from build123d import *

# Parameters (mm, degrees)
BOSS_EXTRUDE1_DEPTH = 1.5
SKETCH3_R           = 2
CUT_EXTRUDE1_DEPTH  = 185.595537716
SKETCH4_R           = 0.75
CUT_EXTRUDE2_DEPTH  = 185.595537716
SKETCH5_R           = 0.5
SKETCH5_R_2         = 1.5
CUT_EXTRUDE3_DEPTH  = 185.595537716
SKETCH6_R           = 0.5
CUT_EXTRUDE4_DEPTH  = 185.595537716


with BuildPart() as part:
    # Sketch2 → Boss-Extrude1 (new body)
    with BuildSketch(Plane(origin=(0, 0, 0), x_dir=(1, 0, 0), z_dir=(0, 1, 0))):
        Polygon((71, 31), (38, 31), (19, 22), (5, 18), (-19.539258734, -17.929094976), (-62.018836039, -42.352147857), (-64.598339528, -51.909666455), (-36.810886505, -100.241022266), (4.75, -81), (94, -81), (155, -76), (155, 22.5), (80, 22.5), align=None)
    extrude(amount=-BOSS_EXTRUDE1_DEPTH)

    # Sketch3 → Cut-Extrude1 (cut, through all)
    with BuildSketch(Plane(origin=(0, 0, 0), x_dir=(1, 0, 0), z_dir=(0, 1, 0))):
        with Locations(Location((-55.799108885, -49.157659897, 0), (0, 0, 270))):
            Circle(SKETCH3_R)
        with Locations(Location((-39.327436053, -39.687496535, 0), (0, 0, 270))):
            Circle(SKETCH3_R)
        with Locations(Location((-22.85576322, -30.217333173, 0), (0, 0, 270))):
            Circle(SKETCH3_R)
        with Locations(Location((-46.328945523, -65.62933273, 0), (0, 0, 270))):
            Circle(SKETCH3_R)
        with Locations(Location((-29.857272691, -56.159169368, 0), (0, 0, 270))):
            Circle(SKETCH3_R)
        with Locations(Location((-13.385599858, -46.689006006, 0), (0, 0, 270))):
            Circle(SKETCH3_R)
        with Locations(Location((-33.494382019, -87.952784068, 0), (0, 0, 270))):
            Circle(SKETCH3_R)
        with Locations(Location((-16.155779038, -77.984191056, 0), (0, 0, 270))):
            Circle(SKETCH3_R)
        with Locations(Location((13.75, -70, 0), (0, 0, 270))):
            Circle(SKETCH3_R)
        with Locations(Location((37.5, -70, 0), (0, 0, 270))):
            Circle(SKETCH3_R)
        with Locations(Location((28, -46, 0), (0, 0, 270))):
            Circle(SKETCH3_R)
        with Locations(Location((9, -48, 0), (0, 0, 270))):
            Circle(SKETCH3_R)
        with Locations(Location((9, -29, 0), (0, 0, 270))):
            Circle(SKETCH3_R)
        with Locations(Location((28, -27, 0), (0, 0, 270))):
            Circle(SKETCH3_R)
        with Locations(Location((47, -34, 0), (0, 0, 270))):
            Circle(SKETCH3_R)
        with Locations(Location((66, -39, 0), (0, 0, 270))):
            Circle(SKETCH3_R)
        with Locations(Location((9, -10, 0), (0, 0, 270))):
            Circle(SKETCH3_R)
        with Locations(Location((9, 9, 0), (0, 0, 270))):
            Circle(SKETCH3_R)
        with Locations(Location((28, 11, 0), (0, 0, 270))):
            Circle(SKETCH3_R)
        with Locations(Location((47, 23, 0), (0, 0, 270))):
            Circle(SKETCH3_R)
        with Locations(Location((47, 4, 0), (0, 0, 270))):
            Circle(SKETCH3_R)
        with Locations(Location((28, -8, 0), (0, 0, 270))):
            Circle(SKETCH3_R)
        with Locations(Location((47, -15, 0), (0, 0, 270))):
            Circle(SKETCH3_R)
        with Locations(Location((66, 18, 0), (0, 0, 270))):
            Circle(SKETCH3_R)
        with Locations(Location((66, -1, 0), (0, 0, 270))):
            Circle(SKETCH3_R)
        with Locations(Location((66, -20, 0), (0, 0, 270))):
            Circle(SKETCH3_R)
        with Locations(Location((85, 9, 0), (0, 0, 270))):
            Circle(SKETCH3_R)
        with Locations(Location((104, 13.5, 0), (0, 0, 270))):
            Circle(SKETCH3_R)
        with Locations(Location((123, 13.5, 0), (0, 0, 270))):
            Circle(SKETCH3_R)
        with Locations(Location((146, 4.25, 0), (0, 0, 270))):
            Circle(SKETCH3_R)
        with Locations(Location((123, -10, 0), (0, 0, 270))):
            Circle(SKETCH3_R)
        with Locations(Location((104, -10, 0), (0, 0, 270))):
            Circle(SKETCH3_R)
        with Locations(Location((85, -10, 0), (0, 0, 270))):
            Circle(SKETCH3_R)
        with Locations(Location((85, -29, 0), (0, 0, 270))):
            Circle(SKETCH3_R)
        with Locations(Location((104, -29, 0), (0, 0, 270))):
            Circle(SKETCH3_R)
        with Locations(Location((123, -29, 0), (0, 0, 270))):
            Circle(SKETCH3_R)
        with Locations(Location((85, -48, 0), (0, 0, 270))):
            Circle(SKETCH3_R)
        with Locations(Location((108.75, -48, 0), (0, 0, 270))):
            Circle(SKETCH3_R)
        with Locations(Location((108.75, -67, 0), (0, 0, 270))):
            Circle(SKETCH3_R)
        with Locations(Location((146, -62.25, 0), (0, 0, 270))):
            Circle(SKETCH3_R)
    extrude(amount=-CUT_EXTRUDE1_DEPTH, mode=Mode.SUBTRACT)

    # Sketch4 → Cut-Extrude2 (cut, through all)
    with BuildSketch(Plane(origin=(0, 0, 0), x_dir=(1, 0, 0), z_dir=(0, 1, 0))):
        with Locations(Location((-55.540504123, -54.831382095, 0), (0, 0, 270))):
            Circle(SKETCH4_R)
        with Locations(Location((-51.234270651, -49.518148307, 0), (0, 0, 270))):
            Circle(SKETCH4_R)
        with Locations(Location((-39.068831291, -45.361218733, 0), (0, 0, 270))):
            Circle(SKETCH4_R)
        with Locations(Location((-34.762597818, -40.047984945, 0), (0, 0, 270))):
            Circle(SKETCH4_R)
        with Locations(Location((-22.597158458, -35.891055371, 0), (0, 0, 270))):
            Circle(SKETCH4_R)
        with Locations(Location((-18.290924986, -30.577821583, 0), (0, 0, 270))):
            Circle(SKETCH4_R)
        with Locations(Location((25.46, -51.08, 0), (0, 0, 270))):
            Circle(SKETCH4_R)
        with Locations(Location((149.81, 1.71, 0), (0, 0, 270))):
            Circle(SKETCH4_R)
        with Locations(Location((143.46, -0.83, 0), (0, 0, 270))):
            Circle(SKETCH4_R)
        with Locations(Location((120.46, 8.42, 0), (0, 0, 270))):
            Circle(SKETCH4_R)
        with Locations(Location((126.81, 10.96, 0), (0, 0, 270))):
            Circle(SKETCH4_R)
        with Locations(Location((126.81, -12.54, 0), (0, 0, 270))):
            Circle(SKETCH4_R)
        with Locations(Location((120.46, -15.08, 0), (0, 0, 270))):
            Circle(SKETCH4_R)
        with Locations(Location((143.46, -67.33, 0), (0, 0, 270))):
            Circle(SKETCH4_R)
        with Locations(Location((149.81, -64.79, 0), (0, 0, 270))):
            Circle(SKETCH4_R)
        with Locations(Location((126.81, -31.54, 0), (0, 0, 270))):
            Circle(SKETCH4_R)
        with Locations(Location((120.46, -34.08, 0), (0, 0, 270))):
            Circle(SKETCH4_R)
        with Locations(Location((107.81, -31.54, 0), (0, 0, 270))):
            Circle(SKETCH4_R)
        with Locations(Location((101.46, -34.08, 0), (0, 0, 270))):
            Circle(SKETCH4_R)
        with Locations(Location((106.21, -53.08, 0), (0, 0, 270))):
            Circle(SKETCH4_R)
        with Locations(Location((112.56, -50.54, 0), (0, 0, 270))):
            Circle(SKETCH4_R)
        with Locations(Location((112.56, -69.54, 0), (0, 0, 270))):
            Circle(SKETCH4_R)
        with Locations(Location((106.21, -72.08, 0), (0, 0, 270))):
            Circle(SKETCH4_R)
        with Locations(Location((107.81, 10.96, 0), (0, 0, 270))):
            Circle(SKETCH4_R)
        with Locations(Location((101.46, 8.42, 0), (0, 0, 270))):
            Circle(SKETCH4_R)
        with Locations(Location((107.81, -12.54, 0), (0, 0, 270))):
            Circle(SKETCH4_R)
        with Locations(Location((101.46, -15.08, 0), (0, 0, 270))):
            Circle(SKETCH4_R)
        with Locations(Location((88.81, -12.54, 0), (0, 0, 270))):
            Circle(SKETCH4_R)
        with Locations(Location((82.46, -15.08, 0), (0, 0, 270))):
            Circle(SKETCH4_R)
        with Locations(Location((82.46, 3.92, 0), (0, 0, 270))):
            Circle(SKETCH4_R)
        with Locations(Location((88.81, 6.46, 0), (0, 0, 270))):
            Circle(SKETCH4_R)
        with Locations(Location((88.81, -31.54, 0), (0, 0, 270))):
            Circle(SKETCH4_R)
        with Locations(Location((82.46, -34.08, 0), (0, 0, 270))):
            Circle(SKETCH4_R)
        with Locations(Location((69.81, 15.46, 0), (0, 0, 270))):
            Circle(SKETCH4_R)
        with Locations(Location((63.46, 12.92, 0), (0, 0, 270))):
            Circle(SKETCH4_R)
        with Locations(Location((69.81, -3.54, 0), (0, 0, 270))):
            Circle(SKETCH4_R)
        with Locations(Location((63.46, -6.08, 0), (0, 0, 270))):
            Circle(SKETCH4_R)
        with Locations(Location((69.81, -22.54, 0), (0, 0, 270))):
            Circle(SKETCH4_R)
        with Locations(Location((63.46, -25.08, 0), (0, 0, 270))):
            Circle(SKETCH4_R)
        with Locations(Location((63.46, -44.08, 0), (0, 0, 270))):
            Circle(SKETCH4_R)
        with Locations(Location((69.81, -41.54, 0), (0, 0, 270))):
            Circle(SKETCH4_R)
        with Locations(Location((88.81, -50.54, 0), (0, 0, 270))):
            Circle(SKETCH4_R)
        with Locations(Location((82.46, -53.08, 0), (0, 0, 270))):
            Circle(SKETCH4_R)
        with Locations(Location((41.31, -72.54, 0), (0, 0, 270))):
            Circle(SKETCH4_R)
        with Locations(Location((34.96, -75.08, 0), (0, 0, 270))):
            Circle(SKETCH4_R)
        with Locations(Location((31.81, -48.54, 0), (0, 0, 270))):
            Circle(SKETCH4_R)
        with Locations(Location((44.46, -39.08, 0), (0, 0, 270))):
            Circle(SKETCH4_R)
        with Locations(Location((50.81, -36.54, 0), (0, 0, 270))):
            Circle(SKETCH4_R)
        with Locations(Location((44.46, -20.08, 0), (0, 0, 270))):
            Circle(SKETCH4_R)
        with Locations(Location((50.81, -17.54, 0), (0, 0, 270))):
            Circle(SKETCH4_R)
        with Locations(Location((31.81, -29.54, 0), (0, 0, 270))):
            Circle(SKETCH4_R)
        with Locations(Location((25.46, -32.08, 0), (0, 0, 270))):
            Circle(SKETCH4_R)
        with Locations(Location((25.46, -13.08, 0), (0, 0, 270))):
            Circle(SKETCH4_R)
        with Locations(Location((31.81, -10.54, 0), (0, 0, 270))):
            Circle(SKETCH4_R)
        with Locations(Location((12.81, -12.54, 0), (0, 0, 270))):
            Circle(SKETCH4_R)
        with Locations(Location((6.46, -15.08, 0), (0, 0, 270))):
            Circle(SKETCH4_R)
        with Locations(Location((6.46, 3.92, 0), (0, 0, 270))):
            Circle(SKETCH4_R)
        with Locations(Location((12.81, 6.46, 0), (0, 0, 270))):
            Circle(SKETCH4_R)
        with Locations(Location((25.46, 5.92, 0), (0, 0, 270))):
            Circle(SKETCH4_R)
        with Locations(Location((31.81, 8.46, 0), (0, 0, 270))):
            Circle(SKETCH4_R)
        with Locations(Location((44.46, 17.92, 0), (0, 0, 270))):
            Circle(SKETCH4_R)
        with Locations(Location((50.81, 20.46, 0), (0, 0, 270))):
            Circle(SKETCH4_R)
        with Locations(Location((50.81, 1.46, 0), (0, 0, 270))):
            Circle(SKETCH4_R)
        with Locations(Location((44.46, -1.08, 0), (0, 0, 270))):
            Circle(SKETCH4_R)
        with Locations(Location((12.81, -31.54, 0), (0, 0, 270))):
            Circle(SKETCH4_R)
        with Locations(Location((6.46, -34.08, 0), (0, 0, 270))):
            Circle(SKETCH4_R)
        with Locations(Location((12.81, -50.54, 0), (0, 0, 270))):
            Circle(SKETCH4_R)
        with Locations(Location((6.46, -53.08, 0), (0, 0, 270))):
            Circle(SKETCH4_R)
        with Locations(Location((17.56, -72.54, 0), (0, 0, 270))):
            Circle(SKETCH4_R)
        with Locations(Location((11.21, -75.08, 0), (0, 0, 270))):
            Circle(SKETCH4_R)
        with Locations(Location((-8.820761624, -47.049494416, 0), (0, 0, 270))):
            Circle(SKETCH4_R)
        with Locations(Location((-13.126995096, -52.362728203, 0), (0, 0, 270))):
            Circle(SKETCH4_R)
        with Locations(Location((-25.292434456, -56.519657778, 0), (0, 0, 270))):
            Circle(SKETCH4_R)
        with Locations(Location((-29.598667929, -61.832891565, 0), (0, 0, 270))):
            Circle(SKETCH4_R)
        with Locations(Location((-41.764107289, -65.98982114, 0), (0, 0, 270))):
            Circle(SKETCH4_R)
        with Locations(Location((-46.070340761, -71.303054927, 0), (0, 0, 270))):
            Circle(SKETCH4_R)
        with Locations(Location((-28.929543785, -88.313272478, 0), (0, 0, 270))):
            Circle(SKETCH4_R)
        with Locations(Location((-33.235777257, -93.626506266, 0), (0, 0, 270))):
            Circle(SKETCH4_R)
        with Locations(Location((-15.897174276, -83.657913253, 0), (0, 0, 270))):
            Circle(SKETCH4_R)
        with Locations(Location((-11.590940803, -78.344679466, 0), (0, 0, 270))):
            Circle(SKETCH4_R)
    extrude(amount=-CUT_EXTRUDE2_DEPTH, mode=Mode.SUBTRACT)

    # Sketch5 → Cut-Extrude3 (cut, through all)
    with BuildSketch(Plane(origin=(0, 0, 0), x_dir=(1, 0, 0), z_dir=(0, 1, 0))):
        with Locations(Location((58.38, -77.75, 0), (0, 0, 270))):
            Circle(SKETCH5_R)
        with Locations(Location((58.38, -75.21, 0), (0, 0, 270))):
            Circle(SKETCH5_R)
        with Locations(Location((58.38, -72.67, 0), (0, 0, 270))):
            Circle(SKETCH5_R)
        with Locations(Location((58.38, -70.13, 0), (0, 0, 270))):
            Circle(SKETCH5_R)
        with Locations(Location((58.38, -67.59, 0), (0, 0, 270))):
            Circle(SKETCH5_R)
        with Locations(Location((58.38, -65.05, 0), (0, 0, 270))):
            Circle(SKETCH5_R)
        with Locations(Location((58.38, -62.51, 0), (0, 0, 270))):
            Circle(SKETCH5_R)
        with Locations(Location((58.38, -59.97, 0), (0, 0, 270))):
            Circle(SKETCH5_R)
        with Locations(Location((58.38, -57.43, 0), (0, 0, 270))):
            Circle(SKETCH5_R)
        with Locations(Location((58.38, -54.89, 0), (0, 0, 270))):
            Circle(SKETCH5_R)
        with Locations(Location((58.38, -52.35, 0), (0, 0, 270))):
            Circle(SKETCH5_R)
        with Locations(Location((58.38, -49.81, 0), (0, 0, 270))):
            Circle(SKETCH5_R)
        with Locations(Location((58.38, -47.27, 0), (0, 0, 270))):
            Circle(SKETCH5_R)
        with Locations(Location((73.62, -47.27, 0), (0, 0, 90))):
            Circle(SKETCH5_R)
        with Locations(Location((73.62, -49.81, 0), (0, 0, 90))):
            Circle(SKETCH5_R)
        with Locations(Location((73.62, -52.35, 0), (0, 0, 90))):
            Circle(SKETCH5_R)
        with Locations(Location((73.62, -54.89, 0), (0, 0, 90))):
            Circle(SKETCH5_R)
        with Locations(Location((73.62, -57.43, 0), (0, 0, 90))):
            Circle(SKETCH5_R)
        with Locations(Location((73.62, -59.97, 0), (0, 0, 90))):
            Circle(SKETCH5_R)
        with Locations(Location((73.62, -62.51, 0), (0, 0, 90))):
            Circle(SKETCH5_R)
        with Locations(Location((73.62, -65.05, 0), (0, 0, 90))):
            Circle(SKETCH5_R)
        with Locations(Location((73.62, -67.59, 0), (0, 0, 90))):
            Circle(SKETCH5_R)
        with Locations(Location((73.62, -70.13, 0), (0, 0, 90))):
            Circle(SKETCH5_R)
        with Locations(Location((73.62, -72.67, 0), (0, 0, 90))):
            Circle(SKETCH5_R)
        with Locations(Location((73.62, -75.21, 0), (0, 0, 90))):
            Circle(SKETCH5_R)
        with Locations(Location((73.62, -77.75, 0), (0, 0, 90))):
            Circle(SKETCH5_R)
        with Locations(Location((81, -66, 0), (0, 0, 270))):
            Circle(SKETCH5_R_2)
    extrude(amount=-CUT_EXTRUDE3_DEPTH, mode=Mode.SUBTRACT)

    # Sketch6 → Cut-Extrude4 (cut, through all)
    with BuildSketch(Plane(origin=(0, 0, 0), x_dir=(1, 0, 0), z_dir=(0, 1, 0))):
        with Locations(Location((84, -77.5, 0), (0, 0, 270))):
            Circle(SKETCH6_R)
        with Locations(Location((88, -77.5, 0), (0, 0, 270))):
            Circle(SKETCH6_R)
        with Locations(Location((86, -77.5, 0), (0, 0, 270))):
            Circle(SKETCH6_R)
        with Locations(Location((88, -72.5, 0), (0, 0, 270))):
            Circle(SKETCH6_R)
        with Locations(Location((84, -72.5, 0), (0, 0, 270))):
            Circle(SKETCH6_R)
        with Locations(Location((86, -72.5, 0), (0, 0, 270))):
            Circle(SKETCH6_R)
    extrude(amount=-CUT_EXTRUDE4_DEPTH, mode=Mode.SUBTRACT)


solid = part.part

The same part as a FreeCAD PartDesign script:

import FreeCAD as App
import Part
import Sketcher


def add_polygon(sketch, points):
    """Adds a closed chain of lines whose ends are joined by coincident constraints."""
    first, n = sketch.GeometryCount, len(points)
    for a, b in zip(points, points[1:] + points[:1]):
        sketch.addGeometry(Part.LineSegment(App.Vector(*a, 0), App.Vector(*b, 0)), False)
    for i in range(n):
        sketch.addConstraint(Sketcher.Constraint("Coincident", first + i, 2, first + (i + 1) % n, 1))

doc = App.newDocument("Part")
body = doc.addObject("PartDesign::Body", "Body")

sketch1 = doc.addObject("Sketcher::SketchObject", "Sketch")
body.addObject(sketch1)
sketch1.AttachmentSupport = (doc.XZ_Plane, [""])
sketch1.MapMode = "FlatFace"
add_polygon(sketch1, [(71, -31), (38, -31), (19, -22), (5, -18), (-19.539259, 17.929095), (-62.018836, 42.352148), (-64.59834, 51.909666), (-36.810887, 100.241022), (4.75, 81), (94, 81), (155, 76), (155, -22.5), (80, -22.5)])
sketch1.addConstraint([
    Sketcher.Constraint("Horizontal", 0),
    Sketcher.Constraint("Horizontal", 8),
    Sketcher.Constraint("Vertical", 10),
    Sketcher.Constraint("Horizontal", 11),
    Sketcher.Constraint("Perpendicular", 4, 6),
    Sketcher.Constraint("DistanceX", 0, 2, 0, 1, 33.0),
    Sketcher.Constraint("DistanceX", 11, 2, 11, 1, 75.0),
    Sketcher.Constraint("Distance", 4, 49.0),
    Sketcher.Constraint("DistanceY", 10, 2, 10, 1, 98.5),
    Sketcher.Constraint("DistanceX", -1, 1, 0, 2, 38.0),
    Sketcher.Constraint("DistanceY", 0, 2, -1, 1, 31.0),
    Sketcher.Constraint("DistanceX", -1, 1, 1, 2, 19.0),
    Sketcher.Constraint("DistanceY", 1, 2, -1, 1, 22.0),
    Sketcher.Constraint("DistanceX", -1, 1, 2, 2, 5.0),
    Sketcher.Constraint("DistanceY", 2, 2, -1, 1, 18.0),
    Sketcher.Constraint("DistanceY", -1, 1, 7, 2, 81.0),
    Sketcher.Constraint("DistanceX", -1, 1, 8, 2, 94.0),
    Sketcher.Constraint("DistanceX", -1, 1, 9, 2, 155.0),
    Sketcher.Constraint("DistanceY", -1, 1, 9, 2, 76.0),
    Sketcher.Constraint("DistanceX", 8, 1, 8, 2, 89.25),
    Sketcher.Constraint("Distance", 6, 55.75),
    Sketcher.Constraint("DistanceX", 3, 2, -1, 1, 19.539259),
    Sketcher.Constraint("DistanceX", 5, 2, -1, 1, 64.59834),
    Sketcher.Constraint("DistanceY", 4, 2, 5, 2, 9.557519),
    Sketcher.Constraint("DistanceY", 3, 2, 5, 2, 33.980571),
    Sketcher.Constraint("Distance", 3, 43.509483),
])
pad1 = doc.addObject("PartDesign::Pad", "Pad")
body.addObject(pad1)
pad1.Profile = sketch1
pad1.Length = 1.5

sketch2 = doc.addObject("Sketcher::SketchObject", "Sketch001")
body.addObject(sketch2)
sketch2.AttachmentSupport = (doc.XZ_Plane, [""])
sketch2.MapMode = "FlatFace"
sketch2.addGeometry([
    Part.Circle(App.Vector(-55.799109, 49.15766, 0), App.Vector(0, 0, 1), 2),
    Part.Circle(App.Vector(-39.327436, 39.687497, 0), App.Vector(0, 0, 1), 2),
    Part.Circle(App.Vector(-22.855763, 30.217333, 0), App.Vector(0, 0, 1), 2),
    Part.Circle(App.Vector(-46.328946, 65.629333, 0), App.Vector(0, 0, 1), 2),
    Part.Circle(App.Vector(-29.857273, 56.159169, 0), App.Vector(0, 0, 1), 2),
    Part.Circle(App.Vector(-13.3856, 46.689006, 0), App.Vector(0, 0, 1), 2),
    Part.Circle(App.Vector(-33.494382, 87.952784, 0), App.Vector(0, 0, 1), 2),
    Part.Circle(App.Vector(-16.155779, 77.984191, 0), App.Vector(0, 0, 1), 2),
    Part.Circle(App.Vector(13.75, 70, 0), App.Vector(0, 0, 1), 2),
    Part.Circle(App.Vector(37.5, 70, 0), App.Vector(0, 0, 1), 2),
    Part.Circle(App.Vector(28, 46, 0), App.Vector(0, 0, 1), 2),
    Part.Circle(App.Vector(9, 48, 0), App.Vector(0, 0, 1), 2),
    Part.Circle(App.Vector(9, 29, 0), App.Vector(0, 0, 1), 2),
    Part.Circle(App.Vector(28, 27, 0), App.Vector(0, 0, 1), 2),
    Part.Circle(App.Vector(47, 34, 0), App.Vector(0, 0, 1), 2),
    Part.Circle(App.Vector(66, 39, 0), App.Vector(0, 0, 1), 2),
    Part.Circle(App.Vector(9, 10, 0), App.Vector(0, 0, 1), 2),
    Part.Circle(App.Vector(9, -9, 0), App.Vector(0, 0, 1), 2),
    Part.Circle(App.Vector(28, -11, 0), App.Vector(0, 0, 1), 2),
    Part.Circle(App.Vector(47, -23, 0), App.Vector(0, 0, 1), 2),
    Part.Circle(App.Vector(47, -4, 0), App.Vector(0, 0, 1), 2),
    Part.Circle(App.Vector(28, 8, 0), App.Vector(0, 0, 1), 2),
    Part.Circle(App.Vector(47, 15, 0), App.Vector(0, 0, 1), 2),
    Part.Circle(App.Vector(66, -18, 0), App.Vector(0, 0, 1), 2),
    Part.Circle(App.Vector(66, 1, 0), App.Vector(0, 0, 1), 2),
    Part.Circle(App.Vector(66, 20, 0), App.Vector(0, 0, 1), 2),
    Part.Circle(App.Vector(85, -9, 0), App.Vector(0, 0, 1), 2),
    Part.Circle(App.Vector(104, -13.5, 0), App.Vector(0, 0, 1), 2),
    Part.Circle(App.Vector(123, -13.5, 0), App.Vector(0, 0, 1), 2),
    Part.Circle(App.Vector(146, -4.25, 0), App.Vector(0, 0, 1), 2),
    Part.Circle(App.Vector(123, 10, 0), App.Vector(0, 0, 1), 2),
    Part.Circle(App.Vector(104, 10, 0), App.Vector(0, 0, 1), 2),
    Part.Circle(App.Vector(85, 10, 0), App.Vector(0, 0, 1), 2),
    Part.Circle(App.Vector(85, 29, 0), App.Vector(0, 0, 1), 2),
    Part.Circle(App.Vector(104, 29, 0), App.Vector(0, 0, 1), 2),
    Part.Circle(App.Vector(123, 29, 0), App.Vector(0, 0, 1), 2),
    Part.Circle(App.Vector(85, 48, 0), App.Vector(0, 0, 1), 2),
    Part.Circle(App.Vector(108.75, 48, 0), App.Vector(0, 0, 1), 2),
    Part.Circle(App.Vector(108.75, 67, 0), App.Vector(0, 0, 1), 2),
    Part.Circle(App.Vector(146, 62.25, 0), App.Vector(0, 0, 1), 2),
], False)
sketch2.addConstraint([
    Sketcher.Constraint("Equal", 0, 1),
    Sketcher.Constraint("Equal", 1, 2),
    Sketcher.Constraint("Equal", 2, 3),
    Sketcher.Constraint("Equal", 3, 4),
    Sketcher.Constraint("Equal", 4, 5),
    Sketcher.Constraint("Equal", 5, 6),
    Sketcher.Constraint("Equal", 6, 7),
    Sketcher.Constraint("Equal", 7, 8),
    Sketcher.Constraint("Equal", 8, 9),
    Sketcher.Constraint("Equal", 9, 10),
    Sketcher.Constraint("Equal", 10, 11),
    Sketcher.Constraint("Equal", 11, 12),
    Sketcher.Constraint("Equal", 12, 13),
    Sketcher.Constraint("Equal", 13, 14),
    Sketcher.Constraint("Equal", 14, 15),
    Sketcher.Constraint("Equal", 15, 16),
    Sketcher.Constraint("Equal", 16, 17),
    Sketcher.Constraint("Equal", 17, 18),
    Sketcher.Constraint("Equal", 18, 19),
    Sketcher.Constraint("Equal", 19, 20),
    Sketcher.Constraint("Equal", 20, 21),
    Sketcher.Constraint("Equal", 21, 22),
    Sketcher.Constraint("Equal", 22, 23),
    Sketcher.Constraint("Equal", 23, 24),
    Sketcher.Constraint("Equal", 24, 25),
    Sketcher.Constraint("Equal", 25, 26),
    Sketcher.Constraint("Equal", 26, 27),
    Sketcher.Constraint("Equal", 27, 28),
    Sketcher.Constraint("Equal", 28, 29),
    Sketcher.Constraint("Equal", 29, 30),
    Sketcher.Constraint("Equal", 30, 31),
    Sketcher.Constraint("Equal", 31, 32),
    Sketcher.Constraint("Equal", 32, 33),
    Sketcher.Constraint("Equal", 33, 34),
    Sketcher.Constraint("Equal", 34, 35),
    Sketcher.Constraint("Equal", 35, 36),
    Sketcher.Constraint("Equal", 36, 37),
    Sketcher.Constraint("Equal", 37, 38),
    Sketcher.Constraint("Equal", 38, 39),
    Sketcher.Constraint("Horizontal", 8, 3, 9, 3),
    Sketcher.Constraint("Horizontal", 17, 3, 26, 3),
    Sketcher.Constraint("Horizontal", 27, 3, 28, 3),
    Sketcher.Constraint("Horizontal", 16, 3, 30, 3),
    Sketcher.Constraint("Horizontal", 30, 3, 31, 3),
    Sketcher.Constraint("Horizontal", 31, 3, 32, 3),
    Sketcher.Constraint("Horizontal", 12, 3, 33, 3),
    Sketcher.Constraint("Horizontal", 33, 3, 34, 3),
    Sketcher.Constraint("Horizontal", 34, 3, 35, 3),
    Sketcher.Constraint("Horizontal", 11, 3, 36, 3),
    Sketcher.Constraint("Horizontal", 36, 3, 37, 3),
    Sketcher.Constraint("Vertical", 11, 3, 12, 3),
    Sketcher.Constraint("Vertical", 10, 3, 13, 3),
    Sketcher.Constraint("Vertical", 12, 3, 16, 3),
    Sketcher.Constraint("Vertical", 16, 3, 17, 3),
    Sketcher.Constraint("Vertical", 13, 3, 18, 3),
    Sketcher.Constraint("Vertical", 14, 3, 19, 3),
    Sketcher.Constraint("Vertical", 19, 3, 20, 3),
    Sketcher.Constraint("Vertical", 18, 3, 21, 3),
    Sketcher.Constraint("Vertical", 20, 3, 22, 3),
    Sketcher.Constraint("Vertical", 15, 3, 23, 3),
    Sketcher.Constraint("Vertical", 23, 3, 24, 3),
    Sketcher.Constraint("Vertical", 24, 3, 25, 3),
    Sketcher.Constraint("Vertical", 28, 3, 30, 3),
    Sketcher.Constraint("Vertical", 27, 3, 31, 3),
    Sketcher.Constraint("Vertical", 26, 3, 32, 3),
    Sketcher.Constraint("Vertical", 32, 3, 33, 3),
    Sketcher.Constraint("Vertical", 31, 3, 34, 3),
    Sketcher.Constraint("Vertical", 30, 3, 35, 3),
    Sketcher.Constraint("Vertical", 33, 3, 36, 3),
    Sketcher.Constraint("Vertical", 37, 3, 38, 3),
    Sketcher.Constraint("Vertical", 29, 3, 39, 3),
    Sketcher.Constraint("Diameter", 0, 4.0),
    Sketcher.Constraint("DistanceY", -1, 1, 8, 3, 70.0),
    Sketcher.Constraint("DistanceX", -1, 1, 10, 3, 28.0),
    Sketcher.Constraint("DistanceY", -1, 1, 10, 3, 46.0),
    Sketcher.Constraint("DistanceX", -1, 1, 11, 3, 9.0),
    Sketcher.Constraint("DistanceY", -1, 1, 11, 3, 48.0),
    Sketcher.Constraint("DistanceY", -1, 1, 12, 3, 29.0),
    Sketcher.Constraint("DistanceY", -1, 1, 13, 3, 27.0),
    Sketcher.Constraint("DistanceX", -1, 1, 14, 3, 47.0),
    Sketcher.Constraint("DistanceY", -1, 1, 14, 3, 34.0),
    Sketcher.Constraint("DistanceX", -1, 1, 15, 3, 66.0),
    Sketcher.Constraint("DistanceY", -1, 1, 15, 3, 39.0),
    Sketcher.Constraint("DistanceY", -1, 1, 16, 3, 10.0),
    Sketcher.Constraint("DistanceY", 17, 3, -1, 1, 9.0),
    Sketcher.Constraint("DistanceY", 18, 3, -1, 1, 11.0),
    Sketcher.Constraint("DistanceY", 19, 3, -1, 1, 23.0),
    Sketcher.Constraint("DistanceY", 20, 3, -1, 1, 4.0),
    Sketcher.Constraint("DistanceY", -1, 1, 21, 3, 8.0),
    Sketcher.Constraint("DistanceY", -1, 1, 22, 3, 15.0),
    Sketcher.Constraint("DistanceY", 23, 3, -1, 1, 18.0),
    Sketcher.Constraint("DistanceY", -1, 1, 24, 3, 1.0),
    Sketcher.Constraint("DistanceY", -1, 1, 25, 3, 20.0),
    Sketcher.Constraint("DistanceX", -1, 1, 26, 3, 85.0),
    Sketcher.Constraint("DistanceX", -1, 1, 27, 3, 104.0),
    Sketcher.Constraint("DistanceX", -1, 1, 28, 3, 123.0),
    Sketcher.Constraint("DistanceX", -1, 1, 29, 3, 146.0),
    Sketcher.Constraint("DistanceY", -1, 1, 38, 3, 67.0),
    Sketcher.Constraint("DistanceX", -1, 1, 9, 3, 37.5),
    Sketcher.Constraint("DistanceY", 27, 3, -1, 1, 13.5),
    Sketcher.Constraint("DistanceX", -1, 1, 8, 3, 13.75),
    Sketcher.Constraint("DistanceY", 29, 3, -1, 1, 4.25),
    Sketcher.Constraint("DistanceX", -1, 1, 37, 3, 108.75),
    Sketcher.Constraint("DistanceY", -1, 1, 39, 3, 62.25),
    Sketcher.Constraint("DistanceY", 2, 3, 3, 3, 35.412),
    Sketcher.Constraint("DistanceX", 5, 3, -1, 1, 13.3856),
    Sketcher.Constraint("DistanceX", 0, 3, -1, 1, 55.799109),
    Sketcher.Constraint("DistanceY", -1, 1, 0, 3, 49.15766),
    Sketcher.Constraint("DistanceY", -1, 1, 4, 3, 56.159169),
    Sketcher.Constraint("DistanceX", 7, 3, -1, 1, 16.155779),
    Sketcher.Constraint("DistanceY", -1, 1, 7, 3, 77.984191),
    Sketcher.Constraint("DistanceX", 3, 3, 1, 3, 7.001509),
    Sketcher.Constraint("DistanceX", 4, 3, 2, 3, 7.001509),
    Sketcher.Constraint("DistanceY", 1, 3, 5, 3, 7.001509),
    Sketcher.Constraint("DistanceY", 3, 3, 6, 3, 22.323451),
    Sketcher.Constraint("DistanceX", 6, 3, 4, 3, 3.637109),
    Sketcher.Constraint("DistanceY", 5, 3, 6, 3, 41.263778),
    Sketcher.Constraint("DistanceY", 3, 3, 7, 3, 12.354858),
    Sketcher.Constraint("DistanceX", 1, 3, -1, 1, 39.327436),
    Sketcher.Constraint("DistanceX", 2, 3, -1, 1, 22.855763),
])
pocket1 = doc.addObject("PartDesign::Pocket", "Pocket")
body.addObject(pocket1)
pocket1.Profile = sketch2
pocket1.Type = "ThroughAll"
pocket1.Reversed = True

sketch3 = doc.addObject("Sketcher::SketchObject", "Sketch002")
body.addObject(sketch3)
sketch3.AttachmentSupport = (doc.XZ_Plane, [""])
sketch3.MapMode = "FlatFace"
sketch3.addGeometry([
    Part.Circle(App.Vector(-55.540504, 54.831382, 0), App.Vector(0, 0, 1), 0.75),
    Part.Circle(App.Vector(-51.234271, 49.518148, 0), App.Vector(0, 0, 1), 0.75),
    Part.Circle(App.Vector(-39.068831, 45.361219, 0), App.Vector(0, 0, 1), 0.75),
    Part.Circle(App.Vector(-34.762598, 40.047985, 0), App.Vector(0, 0, 1), 0.75),
    Part.Circle(App.Vector(-22.597158, 35.891055, 0), App.Vector(0, 0, 1), 0.75),
    Part.Circle(App.Vector(-18.290925, 30.577822, 0), App.Vector(0, 0, 1), 0.75),
    Part.Circle(App.Vector(25.46, 51.08, 0), App.Vector(0, 0, 1), 0.75),
    Part.Circle(App.Vector(149.81, -1.71, 0), App.Vector(0, 0, 1), 0.75),
    Part.Circle(App.Vector(143.46, 0.83, 0), App.Vector(0, 0, 1), 0.75),
    Part.Circle(App.Vector(120.46, -8.42, 0), App.Vector(0, 0, 1), 0.75),
    Part.Circle(App.Vector(126.81, -10.96, 0), App.Vector(0, 0, 1), 0.75),
    Part.Circle(App.Vector(126.81, 12.54, 0), App.Vector(0, 0, 1), 0.75),
    Part.Circle(App.Vector(120.46, 15.08, 0), App.Vector(0, 0, 1), 0.75),
    Part.Circle(App.Vector(143.46, 67.33, 0), App.Vector(0, 0, 1), 0.75),
    Part.Circle(App.Vector(149.81, 64.79, 0), App.Vector(0, 0, 1), 0.75),
    Part.Circle(App.Vector(126.81, 31.54, 0), App.Vector(0, 0, 1), 0.75),
    Part.Circle(App.Vector(120.46, 34.08, 0), App.Vector(0, 0, 1), 0.75),
    Part.Circle(App.Vector(107.81, 31.54, 0), App.Vector(0, 0, 1), 0.75),
    Part.Circle(App.Vector(101.46, 34.08, 0), App.Vector(0, 0, 1), 0.75),
    Part.Circle(App.Vector(106.21, 53.08, 0), App.Vector(0, 0, 1), 0.75),
    Part.Circle(App.Vector(112.56, 50.54, 0), App.Vector(0, 0, 1), 0.75),
    Part.Circle(App.Vector(112.56, 69.54, 0), App.Vector(0, 0, 1), 0.75),
    Part.Circle(App.Vector(106.21, 72.08, 0), App.Vector(0, 0, 1), 0.75),
    Part.Circle(App.Vector(107.81, -10.96, 0), App.Vector(0, 0, 1), 0.75),
    Part.Circle(App.Vector(101.46, -8.42, 0), App.Vector(0, 0, 1), 0.75),
    Part.Circle(App.Vector(107.81, 12.54, 0), App.Vector(0, 0, 1), 0.75),
    Part.Circle(App.Vector(101.46, 15.08, 0), App.Vector(0, 0, 1), 0.75),
    Part.Circle(App.Vector(88.81, 12.54, 0), App.Vector(0, 0, 1), 0.75),
    Part.Circle(App.Vector(82.46, 15.08, 0), App.Vector(0, 0, 1), 0.75),
    Part.Circle(App.Vector(82.46, -3.92, 0), App.Vector(0, 0, 1), 0.75),
    Part.Circle(App.Vector(88.81, -6.46, 0), App.Vector(0, 0, 1), 0.75),
    Part.Circle(App.Vector(88.81, 31.54, 0), App.Vector(0, 0, 1), 0.75),
    Part.Circle(App.Vector(82.46, 34.08, 0), App.Vector(0, 0, 1), 0.75),
    Part.Circle(App.Vector(69.81, -15.46, 0), App.Vector(0, 0, 1), 0.75),
    Part.Circle(App.Vector(63.46, -12.92, 0), App.Vector(0, 0, 1), 0.75),
    Part.Circle(App.Vector(69.81, 3.54, 0), App.Vector(0, 0, 1), 0.75),
    Part.Circle(App.Vector(63.46, 6.08, 0), App.Vector(0, 0, 1), 0.75),
    Part.Circle(App.Vector(69.81, 22.54, 0), App.Vector(0, 0, 1), 0.75),
    Part.Circle(App.Vector(63.46, 25.08, 0), App.Vector(0, 0, 1), 0.75),
    Part.Circle(App.Vector(63.46, 44.08, 0), App.Vector(0, 0, 1), 0.75),
    Part.Circle(App.Vector(69.81, 41.54, 0), App.Vector(0, 0, 1), 0.75),
    Part.Circle(App.Vector(88.81, 50.54, 0), App.Vector(0, 0, 1), 0.75),
    Part.Circle(App.Vector(82.46, 53.08, 0), App.Vector(0, 0, 1), 0.75),
    Part.Circle(App.Vector(41.31, 72.54, 0), App.Vector(0, 0, 1), 0.75),
    Part.Circle(App.Vector(34.96, 75.08, 0), App.Vector(0, 0, 1), 0.75),
    Part.Circle(App.Vector(31.81, 48.54, 0), App.Vector(0, 0, 1), 0.75),
    Part.Circle(App.Vector(44.46, 39.08, 0), App.Vector(0, 0, 1), 0.75),
    Part.Circle(App.Vector(50.81, 36.54, 0), App.Vector(0, 0, 1), 0.75),
    Part.Circle(App.Vector(44.46, 20.08, 0), App.Vector(0, 0, 1), 0.75),
    Part.Circle(App.Vector(50.81, 17.54, 0), App.Vector(0, 0, 1), 0.75),
    Part.Circle(App.Vector(31.81, 29.54, 0), App.Vector(0, 0, 1), 0.75),
    Part.Circle(App.Vector(25.46, 32.08, 0), App.Vector(0, 0, 1), 0.75),
    Part.Circle(App.Vector(25.46, 13.08, 0), App.Vector(0, 0, 1), 0.75),
    Part.Circle(App.Vector(31.81, 10.54, 0), App.Vector(0, 0, 1), 0.75),
    Part.Circle(App.Vector(12.81, 12.54, 0), App.Vector(0, 0, 1), 0.75),
    Part.Circle(App.Vector(6.46, 15.08, 0), App.Vector(0, 0, 1), 0.75),
    Part.Circle(App.Vector(6.46, -3.92, 0), App.Vector(0, 0, 1), 0.75),
    Part.Circle(App.Vector(12.81, -6.46, 0), App.Vector(0, 0, 1), 0.75),
    Part.Circle(App.Vector(25.46, -5.92, 0), App.Vector(0, 0, 1), 0.75),
    Part.Circle(App.Vector(31.81, -8.46, 0), App.Vector(0, 0, 1), 0.75),
    Part.Circle(App.Vector(44.46, -17.92, 0), App.Vector(0, 0, 1), 0.75),
    Part.Circle(App.Vector(50.81, -20.46, 0), App.Vector(0, 0, 1), 0.75),
    Part.Circle(App.Vector(50.81, -1.46, 0), App.Vector(0, 0, 1), 0.75),
    Part.Circle(App.Vector(44.46, 1.08, 0), App.Vector(0, 0, 1), 0.75),
    Part.Circle(App.Vector(12.81, 31.54, 0), App.Vector(0, 0, 1), 0.75),
    Part.Circle(App.Vector(6.46, 34.08, 0), App.Vector(0, 0, 1), 0.75),
    Part.Circle(App.Vector(12.81, 50.54, 0), App.Vector(0, 0, 1), 0.75),
    Part.Circle(App.Vector(6.46, 53.08, 0), App.Vector(0, 0, 1), 0.75),
    Part.Circle(App.Vector(17.56, 72.54, 0), App.Vector(0, 0, 1), 0.75),
    Part.Circle(App.Vector(11.21, 75.08, 0), App.Vector(0, 0, 1), 0.75),
    Part.Circle(App.Vector(-8.820762, 47.049494, 0), App.Vector(0, 0, 1), 0.75),
    Part.Circle(App.Vector(-13.126995, 52.362728, 0), App.Vector(0, 0, 1), 0.75),
    Part.Circle(App.Vector(-25.292434, 56.519658, 0), App.Vector(0, 0, 1), 0.75),
    Part.Circle(App.Vector(-29.598668, 61.832892, 0), App.Vector(0, 0, 1), 0.75),
    Part.Circle(App.Vector(-41.764107, 65.989821, 0), App.Vector(0, 0, 1), 0.75),
    Part.Circle(App.Vector(-46.070341, 71.303055, 0), App.Vector(0, 0, 1), 0.75),
    Part.Circle(App.Vector(-28.929544, 88.313272, 0), App.Vector(0, 0, 1), 0.75),
    Part.Circle(App.Vector(-33.235777, 93.626506, 0), App.Vector(0, 0, 1), 0.75),
    Part.Circle(App.Vector(-15.897174, 83.657913, 0), App.Vector(0, 0, 1), 0.75),
    Part.Circle(App.Vector(-11.590941, 78.344679, 0), App.Vector(0, 0, 1), 0.75),
], False)
sketch3.addConstraint([
    Sketcher.Constraint("Equal", 0, 1),
    Sketcher.Constraint("Equal", 1, 2),
    Sketcher.Constraint("Equal", 2, 3),
    Sketcher.Constraint("Equal", 3, 4),
    Sketcher.Constraint("Equal", 4, 5),
    Sketcher.Constraint("Equal", 5, 6),
    Sketcher.Constraint("Equal", 6, 7),
    Sketcher.Constraint("Equal", 7, 8),
    Sketcher.Constraint("Equal", 8, 9),
    Sketcher.Constraint("Equal", 9, 10),
    Sketcher.Constraint("Equal", 10, 11),
    Sketcher.Constraint("Equal", 11, 12),
    Sketcher.Constraint("Equal", 12, 13),
    Sketcher.Constraint("Equal", 13, 14),
    Sketcher.Constraint("Equal", 14, 15),
    Sketcher.Constraint("Equal", 15, 16),
    Sketcher.Constraint("Equal", 16, 17),
    Sketcher.Constraint("Equal", 17, 18),
    Sketcher.Constraint("Equal", 18, 19),
    Sketcher.Constraint("Equal", 19, 20),
    Sketcher.Constraint("Equal", 20, 21),
    Sketcher.Constraint("Equal", 21, 22),
    Sketcher.Constraint("Equal", 22, 23),
    Sketcher.Constraint("Equal", 23, 24),
    Sketcher.Constraint("Equal", 24, 25),
    Sketcher.Constraint("Equal", 25, 26),
    Sketcher.Constraint("Equal", 26, 27),
    Sketcher.Constraint("Equal", 27, 28),
    Sketcher.Constraint("Equal", 28, 29),
    Sketcher.Constraint("Equal", 29, 30),
    Sketcher.Constraint("Equal", 30, 31),
    Sketcher.Constraint("Equal", 31, 32),
    Sketcher.Constraint("Equal", 32, 33),
    Sketcher.Constraint("Equal", 33, 34),
    Sketcher.Constraint("Equal", 34, 35),
    Sketcher.Constraint("Equal", 35, 36),
    Sketcher.Constraint("Equal", 36, 37),
    Sketcher.Constraint("Equal", 37, 38),
    Sketcher.Constraint("Equal", 38, 39),
    Sketcher.Constraint("Equal", 39, 40),
    Sketcher.Constraint("Equal", 40, 41),
    Sketcher.Constraint("Equal", 41, 42),
    Sketcher.Constraint("Equal", 42, 43),
    Sketcher.Constraint("Equal", 43, 44),
    Sketcher.Constraint("Equal", 44, 45),
    Sketcher.Constraint("Equal", 45, 46),
    Sketcher.Constraint("Equal", 46, 47),
    Sketcher.Constraint("Equal", 47, 48),
    Sketcher.Constraint("Equal", 48, 49),
    Sketcher.Constraint("Equal", 49, 50),
    Sketcher.Constraint("Equal", 50, 51),
    Sketcher.Constraint("Equal", 51, 52),
    Sketcher.Constraint("Equal", 52, 53),
    Sketcher.Constraint("Equal", 53, 54),
    Sketcher.Constraint("Equal", 54, 55),
    Sketcher.Constraint("Equal", 55, 56),
    Sketcher.Constraint("Equal", 56, 57),
    Sketcher.Constraint("Equal", 57, 58),
    Sketcher.Constraint("Equal", 58, 59),
    Sketcher.Constraint("Equal", 59, 60),
    Sketcher.Constraint("Equal", 60, 61),
    Sketcher.Constraint("Equal", 61, 62),
    Sketcher.Constraint("Equal", 62, 63),
    Sketcher.Constraint("Equal", 63, 64),
    Sketcher.Constraint("Equal", 64, 65),
    Sketcher.Constraint("Equal", 65, 66),
    Sketcher.Constraint("Equal", 66, 67),
    Sketcher.Constraint("Equal", 67, 68),
    Sketcher.Constraint("Equal", 68, 69),
    Sketcher.Constraint("Equal", 69, 70),
    Sketcher.Constraint("Equal", 70, 71),
    Sketcher.Constraint("Equal", 71, 72),
    Sketcher.Constraint("Equal", 72, 73),
    Sketcher.Constraint("Equal", 73, 74),
    Sketcher.Constraint("Equal", 74, 75),
    Sketcher.Constraint("Equal", 75, 76),
    Sketcher.Constraint("Equal", 76, 77),
    Sketcher.Constraint("Equal", 77, 78),
    Sketcher.Constraint("Equal", 78, 79),
    Sketcher.Constraint("Horizontal", 15, 3, 17, 3),
    Sketcher.Constraint("Horizontal", 16, 3, 18, 3),
    Sketcher.Constraint("Horizontal", 10, 3, 23, 3),
    Sketcher.Constraint("Horizontal", 9, 3, 24, 3),
    Sketcher.Constraint("Horizontal", 11, 3, 25, 3),
    Sketcher.Constraint("Horizontal", 12, 3, 26, 3),
    Sketcher.Constraint("Horizontal", 25, 3, 27, 3),
    Sketcher.Constraint("Horizontal", 26, 3, 28, 3),
    Sketcher.Constraint("Horizontal", 17, 3, 31, 3),
    Sketcher.Constraint("Horizontal", 18, 3, 32, 3),
    Sketcher.Constraint("Horizontal", 20, 3, 41, 3),
    Sketcher.Constraint("Horizontal", 19, 3, 42, 3),
    Sketcher.Constraint("Horizontal", 27, 3, 54, 3),
    Sketcher.Constraint("Horizontal", 28, 3, 55, 3),
    Sketcher.Constraint("Horizontal", 29, 3, 56, 3),
    Sketcher.Constraint("Horizontal", 30, 3, 57, 3),
    Sketcher.Constraint("Horizontal", 31, 3, 64, 3),
    Sketcher.Constraint("Horizontal", 32, 3, 65, 3),
    Sketcher.Constraint("Horizontal", 41, 3, 66, 3),
    Sketcher.Constraint("Horizontal", 42, 3, 67, 3),
    Sketcher.Constraint("Horizontal", 43, 3, 68, 3),
    Sketcher.Constraint("Horizontal", 44, 3, 69, 3),
    Sketcher.Constraint("Vertical", 10, 3, 11, 3),
    Sketcher.Constraint("Vertical", 9, 3, 12, 3),
    Sketcher.Constraint("Vertical", 8, 3, 13, 3),
    Sketcher.Constraint("Vertical", 7, 3, 14, 3),
    Sketcher.Constraint("Vertical", 11, 3, 15, 3),
    Sketcher.Constraint("Vertical", 12, 3, 16, 3),
    Sketcher.Constraint("Vertical", 20, 3, 21, 3),
    Sketcher.Constraint("Vertical", 19, 3, 22, 3),
    Sketcher.Constraint("Vertical", 17, 3, 23, 3),
    Sketcher.Constraint("Vertical", 18, 3, 24, 3),
    Sketcher.Constraint("Vertical", 23, 3, 25, 3),
    Sketcher.Constraint("Vertical", 24, 3, 26, 3),
    Sketcher.Constraint("Vertical", 28, 3, 29, 3),
    Sketcher.Constraint("Vertical", 27, 3, 30, 3),
    Sketcher.Constraint("Vertical", 30, 3, 31, 3),
    Sketcher.Constraint("Vertical", 29, 3, 32, 3),
    Sketcher.Constraint("Vertical", 33, 3, 35, 3),
    Sketcher.Constraint("Vertical", 34, 3, 36, 3),
    Sketcher.Constraint("Vertical", 35, 3, 37, 3),
    Sketcher.Constraint("Vertical", 36, 3, 38, 3),
    Sketcher.Constraint("Vertical", 38, 3, 39, 3),
    Sketcher.Constraint("Vertical", 37, 3, 40, 3),
    Sketcher.Constraint("Vertical", 31, 3, 41, 3),
    Sketcher.Constraint("Vertical", 32, 3, 42, 3),
    Sketcher.Constraint("Vertical", 46, 3, 48, 3),
    Sketcher.Constraint("Vertical", 47, 3, 49, 3),
    Sketcher.Constraint("Vertical", 45, 3, 50, 3),
    Sketcher.Constraint("Vertical", 6, 3, 51, 3),
    Sketcher.Constraint("Vertical", 51, 3, 52, 3),
    Sketcher.Constraint("Vertical", 50, 3, 53, 3),
    Sketcher.Constraint("Vertical", 55, 3, 56, 3),
    Sketcher.Constraint("Vertical", 54, 3, 57, 3),
    Sketcher.Constraint("Vertical", 52, 3, 58, 3),
    Sketcher.Constraint("Vertical", 53, 3, 59, 3),
    Sketcher.Constraint("Vertical", 48, 3, 60, 3),
    Sketcher.Constraint("Vertical", 49, 3, 61, 3),
    Sketcher.Constraint("Vertical", 61, 3, 62, 3),
    Sketcher.Constraint("Vertical", 60, 3, 63, 3),
    Sketcher.Constraint("Vertical", 57, 3, 64, 3),
    Sketcher.Constraint("Vertical", 56, 3, 65, 3),
    Sketcher.Constraint("Vertical", 64, 3, 66, 3),
    Sketcher.Constraint("Vertical", 65, 3, 67, 3),
    Sketcher.Constraint("Diameter", 0, 1.5),
    Sketcher.Constraint("DistanceX", -1, 1, 6, 3, 25.46),
    Sketcher.Constraint("DistanceY", -1, 1, 6, 3, 51.08),
    Sketcher.Constraint("DistanceX", -1, 1, 7, 3, 149.81),
    Sketcher.Constraint("DistanceY", 7, 3, -1, 1, 1.71),
    Sketcher.Constraint("DistanceX", -1, 1, 8, 3, 143.46),
    Sketcher.Constraint("DistanceY", -1, 1, 8, 3, 0.83),
    Sketcher.Constraint("DistanceX", -1, 1, 9, 3, 120.46),
    Sketcher.Constraint("DistanceY", 9, 3, -1, 1, 8.42),
    Sketcher.Constraint("DistanceX", -1, 1, 10, 3, 126.81),
    Sketcher.Constraint("DistanceY", 10, 3, -1, 1, 10.96),
    Sketcher.Constraint("DistanceY", -1, 1, 11, 3, 12.54),
    Sketcher.Constraint("DistanceY", -1, 1, 12, 3, 15.08),
    Sketcher.Constraint("DistanceY", -1, 1, 13, 3, 67.33),
    Sketcher.Constraint("DistanceY", -1, 1, 14, 3, 64.79),
    Sketcher.Constraint("DistanceY", -1, 1, 15, 3, 31.54),
    Sketcher.Constraint("DistanceY", -1, 1, 16, 3, 34.08),
    Sketcher.Constraint("DistanceX", -1, 1, 17, 3, 107.81),
    Sketcher.Constraint("DistanceX", -1, 1, 18, 3, 101.46),
    Sketcher.Constraint("DistanceX", -1, 1, 19, 3, 106.21),
    Sketcher.Constraint("DistanceY", -1, 1, 19, 3, 53.08),
    Sketcher.Constraint("DistanceX", -1, 1, 20, 3, 112.56),
    Sketcher.Constraint("DistanceY", -1, 1, 20, 3, 50.54),
    Sketcher.Constraint("DistanceY", -1, 1, 21, 3, 69.54),
    Sketcher.Constraint("DistanceY", -1, 1, 22, 3, 72.08),
    Sketcher.Constraint("DistanceX", -1, 1, 27, 3, 88.81),
    Sketcher.Constraint("DistanceX", -1, 1, 28, 3, 82.46),
    Sketcher.Constraint("DistanceY", 29, 3, -1, 1, 3.92),
    Sketcher.Constraint("DistanceY", 30, 3, -1, 1, 6.46),
    Sketcher.Constraint("DistanceX", -1, 1, 33, 3, 69.81),
    Sketcher.Constraint("DistanceY", 33, 3, -1, 1, 15.46),
    Sketcher.Constraint("DistanceX", -1, 1, 34, 3, 63.46),
    Sketcher.Constraint("DistanceY", 34, 3, -1, 1, 12.92),
    Sketcher.Constraint("DistanceY", -1, 1, 35, 3, 3.54),
    Sketcher.Constraint("DistanceY", -1, 1, 36, 3, 6.08),
    Sketcher.Constraint("DistanceY", -1, 1, 37, 3, 22.54),
    Sketcher.Constraint("DistanceY", -1, 1, 38, 3, 25.08),
    Sketcher.Constraint("DistanceY", -1, 1, 39, 3, 44.08),
    Sketcher.Constraint("DistanceY", -1, 1, 40, 3, 41.54),
    Sketcher.Constraint("DistanceX", -1, 1, 43, 3, 41.31),
    Sketcher.Constraint("DistanceY", -1, 1, 43, 3, 72.54),
    Sketcher.Constraint("DistanceX", -1, 1, 44, 3, 34.96),
    Sketcher.Constraint("DistanceY", -1, 1, 44, 3, 75.08),
    Sketcher.Constraint("DistanceX", -1, 1, 45, 3, 31.81),
    Sketcher.Constraint("DistanceY", -1, 1, 45, 3, 48.54),
    Sketcher.Constraint("DistanceX", -1, 1, 46, 3, 44.46),
    Sketcher.Constraint("DistanceY", -1, 1, 46, 3, 39.08),
    Sketcher.Constraint("DistanceX", -1, 1, 47, 3, 50.81),
    Sketcher.Constraint("DistanceY", -1, 1, 47, 3, 36.54),
    Sketcher.Constraint("DistanceY", -1, 1, 48, 3, 20.08),
    Sketcher.Constraint("DistanceY", -1, 1, 49, 3, 17.54),
    Sketcher.Constraint("DistanceY", -1, 1, 50, 3, 29.54),
    Sketcher.Constraint("DistanceY", -1, 1, 51, 3, 32.08),
    Sketcher.Constraint("DistanceY", -1, 1, 52, 3, 13.08),
    Sketcher.Constraint("DistanceY", -1, 1, 53, 3, 10.54),
    Sketcher.Constraint("DistanceX", -1, 1, 54, 3, 12.81),
    Sketcher.Constraint("DistanceX", -1, 1, 55, 3, 6.46),
    Sketcher.Constraint("DistanceY", 58, 3, -1, 1, 5.92),
    Sketcher.Constraint("DistanceY", 59, 3, -1, 1, 8.46),
    Sketcher.Constraint("DistanceY", 60, 3, -1, 1, 17.92),
    Sketcher.Constraint("DistanceY", 61, 3, -1, 1, 20.46),
    Sketcher.Constraint("DistanceY", 62, 3, -1, 1, 1.46),
    Sketcher.Constraint("DistanceY", -1, 1, 63, 3, 1.08),
    Sketcher.Constraint("DistanceX", -1, 1, 68, 3, 17.56),
    Sketcher.Constraint("DistanceX", -1, 1, 69, 3, 11.21),
    Sketcher.Constraint("DistanceX", 1, 3, -1, 1, 51.234271),
    Sketcher.Constraint("DistanceY", -1, 1, 1, 3, 49.518148),
    Sketcher.Constraint("DistanceX", 2, 3, -1, 1, 39.068831),
    Sketcher.Constraint("DistanceY", -1, 1, 2, 3, 45.361219),
    Sketcher.Constraint("DistanceX", 4, 3, -1, 1, 22.597158),
    Sketcher.Constraint("DistanceY", -1, 1, 5, 3, 30.577822),
    Sketcher.Constraint("DistanceX", 70, 3, -1, 1, 8.820762),
    Sketcher.Constraint("DistanceY", -1, 1, 71, 3, 52.362728),
    Sketcher.Constraint("DistanceY", -1, 1, 73, 3, 61.832892),
    Sketcher.Constraint("DistanceY", -1, 1, 74, 3, 65.989821),
    Sketcher.Constraint("DistanceX", 75, 3, -1, 1, 46.070341),
    Sketcher.Constraint("DistanceX", 79, 3, -1, 1, 11.590941),
    Sketcher.Constraint("DistanceY", -1, 1, 79, 3, 78.344679),
    Sketcher.Constraint("DistanceX", 0, 3, -1, 1, 55.540504),
    Sketcher.Constraint("DistanceY", -1, 1, 0, 3, 54.831382),
    Sketcher.Constraint("DistanceX", 3, 3, -1, 1, 34.762598),
    Sketcher.Constraint("DistanceY", -1, 1, 3, 3, 40.047985),
    Sketcher.Constraint("DistanceY", -1, 1, 4, 3, 35.891055),
    Sketcher.Constraint("DistanceX", 5, 3, -1, 1, 18.290925),
    Sketcher.Constraint("DistanceY", -1, 1, 70, 3, 47.049494),
    Sketcher.Constraint("DistanceX", 71, 3, -1, 1, 13.126995),
    Sketcher.Constraint("DistanceX", 72, 3, -1, 1, 25.292434),
    Sketcher.Constraint("DistanceY", -1, 1, 72, 3, 56.519658),
    Sketcher.Constraint("DistanceX", 73, 3, -1, 1, 29.598668),
    Sketcher.Constraint("DistanceX", 74, 3, -1, 1, 41.764107),
    Sketcher.Constraint("DistanceY", -1, 1, 75, 3, 71.303055),
    Sketcher.Constraint("DistanceX", 76, 3, -1, 1, 28.929544),
    Sketcher.Constraint("DistanceY", -1, 1, 76, 3, 88.313272),
    Sketcher.Constraint("DistanceX", 77, 3, -1, 1, 33.235777),
    Sketcher.Constraint("DistanceY", -1, 1, 77, 3, 93.626506),
    Sketcher.Constraint("DistanceX", 78, 3, -1, 1, 15.897174),
    Sketcher.Constraint("DistanceY", -1, 1, 78, 3, 83.657913),
])
pocket2 = doc.addObject("PartDesign::Pocket", "Pocket001")
body.addObject(pocket2)
pocket2.Profile = sketch3
pocket2.Type = "ThroughAll"
pocket2.Reversed = True

sketch4 = doc.addObject("Sketcher::SketchObject", "Sketch003")
body.addObject(sketch4)
sketch4.AttachmentSupport = (doc.XZ_Plane, [""])
sketch4.MapMode = "FlatFace"
sketch4.addGeometry([
    Part.Circle(App.Vector(58.38, 77.75, 0), App.Vector(0, 0, 1), 0.5),
    Part.Circle(App.Vector(58.38, 75.21, 0), App.Vector(0, 0, 1), 0.5),
    Part.Circle(App.Vector(58.38, 72.67, 0), App.Vector(0, 0, 1), 0.5),
    Part.Circle(App.Vector(58.38, 70.13, 0), App.Vector(0, 0, 1), 0.5),
    Part.Circle(App.Vector(58.38, 67.59, 0), App.Vector(0, 0, 1), 0.5),
    Part.Circle(App.Vector(58.38, 65.05, 0), App.Vector(0, 0, 1), 0.5),
    Part.Circle(App.Vector(58.38, 62.51, 0), App.Vector(0, 0, 1), 0.5),
    Part.Circle(App.Vector(58.38, 59.97, 0), App.Vector(0, 0, 1), 0.5),
    Part.Circle(App.Vector(58.38, 57.43, 0), App.Vector(0, 0, 1), 0.5),
    Part.Circle(App.Vector(58.38, 54.89, 0), App.Vector(0, 0, 1), 0.5),
    Part.Circle(App.Vector(58.38, 52.35, 0), App.Vector(0, 0, 1), 0.5),
    Part.Circle(App.Vector(58.38, 49.81, 0), App.Vector(0, 0, 1), 0.5),
    Part.Circle(App.Vector(58.38, 47.27, 0), App.Vector(0, 0, 1), 0.5),
    Part.Circle(App.Vector(73.62, 47.27, 0), App.Vector(0, 0, 1), 0.5),
    Part.Circle(App.Vector(73.62, 49.81, 0), App.Vector(0, 0, 1), 0.5),
    Part.Circle(App.Vector(73.62, 52.35, 0), App.Vector(0, 0, 1), 0.5),
    Part.Circle(App.Vector(73.62, 54.89, 0), App.Vector(0, 0, 1), 0.5),
    Part.Circle(App.Vector(73.62, 57.43, 0), App.Vector(0, 0, 1), 0.5),
    Part.Circle(App.Vector(73.62, 59.97, 0), App.Vector(0, 0, 1), 0.5),
    Part.Circle(App.Vector(73.62, 62.51, 0), App.Vector(0, 0, 1), 0.5),
    Part.Circle(App.Vector(73.62, 65.05, 0), App.Vector(0, 0, 1), 0.5),
    Part.Circle(App.Vector(73.62, 67.59, 0), App.Vector(0, 0, 1), 0.5),
    Part.Circle(App.Vector(73.62, 70.13, 0), App.Vector(0, 0, 1), 0.5),
    Part.Circle(App.Vector(73.62, 72.67, 0), App.Vector(0, 0, 1), 0.5),
    Part.Circle(App.Vector(73.62, 75.21, 0), App.Vector(0, 0, 1), 0.5),
    Part.Circle(App.Vector(73.62, 77.75, 0), App.Vector(0, 0, 1), 0.5),
    Part.Circle(App.Vector(81, 66, 0), App.Vector(0, 0, 1), 1.5),
], False)
sketch4.addConstraint([
    Sketcher.Constraint("Equal", 0, 1),
    Sketcher.Constraint("Equal", 1, 2),
    Sketcher.Constraint("Equal", 2, 3),
    Sketcher.Constraint("Equal", 3, 4),
    Sketcher.Constraint("Equal", 4, 5),
    Sketcher.Constraint("Equal", 5, 6),
    Sketcher.Constraint("Equal", 6, 7),
    Sketcher.Constraint("Equal", 7, 8),
    Sketcher.Constraint("Equal", 8, 9),
    Sketcher.Constraint("Equal", 9, 10),
    Sketcher.Constraint("Equal", 10, 11),
    Sketcher.Constraint("Equal", 11, 12),
    Sketcher.Constraint("Equal", 12, 13),
    Sketcher.Constraint("Equal", 13, 14),
    Sketcher.Constraint("Equal", 14, 15),
    Sketcher.Constraint("Equal", 15, 16),
    Sketcher.Constraint("Equal", 16, 17),
    Sketcher.Constraint("Equal", 17, 18),
    Sketcher.Constraint("Equal", 18, 19),
    Sketcher.Constraint("Equal", 19, 20),
    Sketcher.Constraint("Equal", 20, 21),
    Sketcher.Constraint("Equal", 21, 22),
    Sketcher.Constraint("Equal", 22, 23),
    Sketcher.Constraint("Equal", 23, 24),
    Sketcher.Constraint("Equal", 24, 25),
    Sketcher.Constraint("Horizontal", 12, 3, 13, 3),
    Sketcher.Constraint("Horizontal", 11, 3, 14, 3),
    Sketcher.Constraint("Horizontal", 10, 3, 15, 3),
    Sketcher.Constraint("Horizontal", 9, 3, 16, 3),
    Sketcher.Constraint("Horizontal", 8, 3, 17, 3),
    Sketcher.Constraint("Horizontal", 7, 3, 18, 3),
    Sketcher.Constraint("Horizontal", 6, 3, 19, 3),
    Sketcher.Constraint("Horizontal", 5, 3, 20, 3),
    Sketcher.Constraint("Horizontal", 4, 3, 21, 3),
    Sketcher.Constraint("Horizontal", 3, 3, 22, 3),
    Sketcher.Constraint("Horizontal", 2, 3, 23, 3),
    Sketcher.Constraint("Horizontal", 1, 3, 24, 3),
    Sketcher.Constraint("Horizontal", 0, 3, 25, 3),
    Sketcher.Constraint("Vertical", 0, 3, 1, 3),
    Sketcher.Constraint("Vertical", 1, 3, 2, 3),
    Sketcher.Constraint("Vertical", 2, 3, 3, 3),
    Sketcher.Constraint("Vertical", 3, 3, 4, 3),
    Sketcher.Constraint("Vertical", 4, 3, 5, 3),
    Sketcher.Constraint("Vertical", 5, 3, 6, 3),
    Sketcher.Constraint("Vertical", 6, 3, 7, 3),
    Sketcher.Constraint("Vertical", 7, 3, 8, 3),
    Sketcher.Constraint("Vertical", 8, 3, 9, 3),
    Sketcher.Constraint("Vertical", 9, 3, 10, 3),
    Sketcher.Constraint("Vertical", 10, 3, 11, 3),
    Sketcher.Constraint("Vertical", 11, 3, 12, 3),
    Sketcher.Constraint("Vertical", 13, 3, 14, 3),
    Sketcher.Constraint("Vertical", 14, 3, 15, 3),
    Sketcher.Constraint("Vertical", 15, 3, 16, 3),
    Sketcher.Constraint("Vertical", 16, 3, 17, 3),
    Sketcher.Constraint("Vertical", 17, 3, 18, 3),
    Sketcher.Constraint("Vertical", 18, 3, 19, 3),
    Sketcher.Constraint("Vertical", 19, 3, 20, 3),
    Sketcher.Constraint("Vertical", 20, 3, 21, 3),
    Sketcher.Constraint("Vertical", 21, 3, 22, 3),
    Sketcher.Constraint("Vertical", 22, 3, 23, 3),
    Sketcher.Constraint("Vertical", 23, 3, 24, 3),
    Sketcher.Constraint("Vertical", 24, 3, 25, 3),
    Sketcher.Constraint("Diameter", 0, 1.0),
    Sketcher.Constraint("Diameter", 26, 3.0),
    Sketcher.Constraint("DistanceX", -1, 1, 26, 3, 81.0),
    Sketcher.Constraint("DistanceY", -1, 1, 26, 3, 66.0),
    Sketcher.Constraint("DistanceY", 5, 3, 0, 3, 12.7),
    Sketcher.Constraint("DistanceY", 6, 3, 1, 3, 12.7),
    Sketcher.Constraint("DistanceY", 7, 3, 2, 3, 12.7),
    Sketcher.Constraint("DistanceY", 8, 3, 3, 3, 12.7),
    Sketcher.Constraint("DistanceY", 9, 3, 4, 3, 12.7),
    Sketcher.Constraint("DistanceY", 10, 3, 5, 3, 12.7),
    Sketcher.Constraint("DistanceY", 11, 3, 6, 3, 12.7),
    Sketcher.Constraint("DistanceY", 12, 3, 7, 3, 12.7),
    Sketcher.Constraint("DistanceX", -1, 1, 0, 3, 58.38),
    Sketcher.Constraint("DistanceY", -1, 1, 0, 3, 77.75),
    Sketcher.Constraint("DistanceY", -1, 1, 1, 3, 75.21),
    Sketcher.Constraint("DistanceY", -1, 1, 2, 3, 72.67),
    Sketcher.Constraint("DistanceY", -1, 1, 3, 3, 70.13),
    Sketcher.Constraint("DistanceY", -1, 1, 4, 3, 67.59),
    Sketcher.Constraint("DistanceX", -1, 1, 13, 3, 73.62),
])
pocket3 = doc.addObject("PartDesign::Pocket", "Pocket002")
body.addObject(pocket3)
pocket3.Profile = sketch4
pocket3.Type = "ThroughAll"
pocket3.Reversed = True

sketch5 = doc.addObject("Sketcher::SketchObject", "Sketch004")
body.addObject(sketch5)
sketch5.AttachmentSupport = (doc.XZ_Plane, [""])
sketch5.MapMode = "FlatFace"
sketch5.addGeometry([
    Part.Circle(App.Vector(84, 77.5, 0), App.Vector(0, 0, 1), 0.5),
    Part.Circle(App.Vector(88, 77.5, 0), App.Vector(0, 0, 1), 0.5),
    Part.Circle(App.Vector(86, 77.5, 0), App.Vector(0, 0, 1), 0.5),
    Part.Circle(App.Vector(88, 72.5, 0), App.Vector(0, 0, 1), 0.5),
    Part.Circle(App.Vector(84, 72.5, 0), App.Vector(0, 0, 1), 0.5),
    Part.Circle(App.Vector(86, 72.5, 0), App.Vector(0, 0, 1), 0.5),
], False)
sketch5.addConstraint([
    Sketcher.Constraint("Equal", 0, 1),
    Sketcher.Constraint("Equal", 1, 2),
    Sketcher.Constraint("Equal", 2, 3),
    Sketcher.Constraint("Equal", 3, 4),
    Sketcher.Constraint("Equal", 4, 5),
    Sketcher.Constraint("Horizontal", 0, 3, 1, 3),
    Sketcher.Constraint("Horizontal", 1, 3, 2, 3),
    Sketcher.Constraint("Horizontal", 3, 3, 4, 3),
    Sketcher.Constraint("Horizontal", 4, 3, 5, 3),
    Sketcher.Constraint("Vertical", 1, 3, 3, 3),
    Sketcher.Constraint("Vertical", 0, 3, 4, 3),
    Sketcher.Constraint("Vertical", 2, 3, 5, 3),
    Sketcher.Constraint("Diameter", 0, 1.0),
    Sketcher.Constraint("DistanceX", -1, 1, 0, 3, 84.0),
    Sketcher.Constraint("DistanceX", -1, 1, 1, 3, 88.0),
    Sketcher.Constraint("DistanceX", -1, 1, 2, 3, 86.0),
    Sketcher.Constraint("DistanceY", 3, 3, 1, 3, 5.0),
    Sketcher.Constraint("DistanceY", -1, 1, 0, 3, 77.5),
])
pocket4 = doc.addObject("PartDesign::Pocket", "Pocket003")
body.addObject(pocket4)
pocket4.Profile = sketch5
pocket4.Type = "ThroughAll"
pocket4.Reversed = True

doc.recompute()
